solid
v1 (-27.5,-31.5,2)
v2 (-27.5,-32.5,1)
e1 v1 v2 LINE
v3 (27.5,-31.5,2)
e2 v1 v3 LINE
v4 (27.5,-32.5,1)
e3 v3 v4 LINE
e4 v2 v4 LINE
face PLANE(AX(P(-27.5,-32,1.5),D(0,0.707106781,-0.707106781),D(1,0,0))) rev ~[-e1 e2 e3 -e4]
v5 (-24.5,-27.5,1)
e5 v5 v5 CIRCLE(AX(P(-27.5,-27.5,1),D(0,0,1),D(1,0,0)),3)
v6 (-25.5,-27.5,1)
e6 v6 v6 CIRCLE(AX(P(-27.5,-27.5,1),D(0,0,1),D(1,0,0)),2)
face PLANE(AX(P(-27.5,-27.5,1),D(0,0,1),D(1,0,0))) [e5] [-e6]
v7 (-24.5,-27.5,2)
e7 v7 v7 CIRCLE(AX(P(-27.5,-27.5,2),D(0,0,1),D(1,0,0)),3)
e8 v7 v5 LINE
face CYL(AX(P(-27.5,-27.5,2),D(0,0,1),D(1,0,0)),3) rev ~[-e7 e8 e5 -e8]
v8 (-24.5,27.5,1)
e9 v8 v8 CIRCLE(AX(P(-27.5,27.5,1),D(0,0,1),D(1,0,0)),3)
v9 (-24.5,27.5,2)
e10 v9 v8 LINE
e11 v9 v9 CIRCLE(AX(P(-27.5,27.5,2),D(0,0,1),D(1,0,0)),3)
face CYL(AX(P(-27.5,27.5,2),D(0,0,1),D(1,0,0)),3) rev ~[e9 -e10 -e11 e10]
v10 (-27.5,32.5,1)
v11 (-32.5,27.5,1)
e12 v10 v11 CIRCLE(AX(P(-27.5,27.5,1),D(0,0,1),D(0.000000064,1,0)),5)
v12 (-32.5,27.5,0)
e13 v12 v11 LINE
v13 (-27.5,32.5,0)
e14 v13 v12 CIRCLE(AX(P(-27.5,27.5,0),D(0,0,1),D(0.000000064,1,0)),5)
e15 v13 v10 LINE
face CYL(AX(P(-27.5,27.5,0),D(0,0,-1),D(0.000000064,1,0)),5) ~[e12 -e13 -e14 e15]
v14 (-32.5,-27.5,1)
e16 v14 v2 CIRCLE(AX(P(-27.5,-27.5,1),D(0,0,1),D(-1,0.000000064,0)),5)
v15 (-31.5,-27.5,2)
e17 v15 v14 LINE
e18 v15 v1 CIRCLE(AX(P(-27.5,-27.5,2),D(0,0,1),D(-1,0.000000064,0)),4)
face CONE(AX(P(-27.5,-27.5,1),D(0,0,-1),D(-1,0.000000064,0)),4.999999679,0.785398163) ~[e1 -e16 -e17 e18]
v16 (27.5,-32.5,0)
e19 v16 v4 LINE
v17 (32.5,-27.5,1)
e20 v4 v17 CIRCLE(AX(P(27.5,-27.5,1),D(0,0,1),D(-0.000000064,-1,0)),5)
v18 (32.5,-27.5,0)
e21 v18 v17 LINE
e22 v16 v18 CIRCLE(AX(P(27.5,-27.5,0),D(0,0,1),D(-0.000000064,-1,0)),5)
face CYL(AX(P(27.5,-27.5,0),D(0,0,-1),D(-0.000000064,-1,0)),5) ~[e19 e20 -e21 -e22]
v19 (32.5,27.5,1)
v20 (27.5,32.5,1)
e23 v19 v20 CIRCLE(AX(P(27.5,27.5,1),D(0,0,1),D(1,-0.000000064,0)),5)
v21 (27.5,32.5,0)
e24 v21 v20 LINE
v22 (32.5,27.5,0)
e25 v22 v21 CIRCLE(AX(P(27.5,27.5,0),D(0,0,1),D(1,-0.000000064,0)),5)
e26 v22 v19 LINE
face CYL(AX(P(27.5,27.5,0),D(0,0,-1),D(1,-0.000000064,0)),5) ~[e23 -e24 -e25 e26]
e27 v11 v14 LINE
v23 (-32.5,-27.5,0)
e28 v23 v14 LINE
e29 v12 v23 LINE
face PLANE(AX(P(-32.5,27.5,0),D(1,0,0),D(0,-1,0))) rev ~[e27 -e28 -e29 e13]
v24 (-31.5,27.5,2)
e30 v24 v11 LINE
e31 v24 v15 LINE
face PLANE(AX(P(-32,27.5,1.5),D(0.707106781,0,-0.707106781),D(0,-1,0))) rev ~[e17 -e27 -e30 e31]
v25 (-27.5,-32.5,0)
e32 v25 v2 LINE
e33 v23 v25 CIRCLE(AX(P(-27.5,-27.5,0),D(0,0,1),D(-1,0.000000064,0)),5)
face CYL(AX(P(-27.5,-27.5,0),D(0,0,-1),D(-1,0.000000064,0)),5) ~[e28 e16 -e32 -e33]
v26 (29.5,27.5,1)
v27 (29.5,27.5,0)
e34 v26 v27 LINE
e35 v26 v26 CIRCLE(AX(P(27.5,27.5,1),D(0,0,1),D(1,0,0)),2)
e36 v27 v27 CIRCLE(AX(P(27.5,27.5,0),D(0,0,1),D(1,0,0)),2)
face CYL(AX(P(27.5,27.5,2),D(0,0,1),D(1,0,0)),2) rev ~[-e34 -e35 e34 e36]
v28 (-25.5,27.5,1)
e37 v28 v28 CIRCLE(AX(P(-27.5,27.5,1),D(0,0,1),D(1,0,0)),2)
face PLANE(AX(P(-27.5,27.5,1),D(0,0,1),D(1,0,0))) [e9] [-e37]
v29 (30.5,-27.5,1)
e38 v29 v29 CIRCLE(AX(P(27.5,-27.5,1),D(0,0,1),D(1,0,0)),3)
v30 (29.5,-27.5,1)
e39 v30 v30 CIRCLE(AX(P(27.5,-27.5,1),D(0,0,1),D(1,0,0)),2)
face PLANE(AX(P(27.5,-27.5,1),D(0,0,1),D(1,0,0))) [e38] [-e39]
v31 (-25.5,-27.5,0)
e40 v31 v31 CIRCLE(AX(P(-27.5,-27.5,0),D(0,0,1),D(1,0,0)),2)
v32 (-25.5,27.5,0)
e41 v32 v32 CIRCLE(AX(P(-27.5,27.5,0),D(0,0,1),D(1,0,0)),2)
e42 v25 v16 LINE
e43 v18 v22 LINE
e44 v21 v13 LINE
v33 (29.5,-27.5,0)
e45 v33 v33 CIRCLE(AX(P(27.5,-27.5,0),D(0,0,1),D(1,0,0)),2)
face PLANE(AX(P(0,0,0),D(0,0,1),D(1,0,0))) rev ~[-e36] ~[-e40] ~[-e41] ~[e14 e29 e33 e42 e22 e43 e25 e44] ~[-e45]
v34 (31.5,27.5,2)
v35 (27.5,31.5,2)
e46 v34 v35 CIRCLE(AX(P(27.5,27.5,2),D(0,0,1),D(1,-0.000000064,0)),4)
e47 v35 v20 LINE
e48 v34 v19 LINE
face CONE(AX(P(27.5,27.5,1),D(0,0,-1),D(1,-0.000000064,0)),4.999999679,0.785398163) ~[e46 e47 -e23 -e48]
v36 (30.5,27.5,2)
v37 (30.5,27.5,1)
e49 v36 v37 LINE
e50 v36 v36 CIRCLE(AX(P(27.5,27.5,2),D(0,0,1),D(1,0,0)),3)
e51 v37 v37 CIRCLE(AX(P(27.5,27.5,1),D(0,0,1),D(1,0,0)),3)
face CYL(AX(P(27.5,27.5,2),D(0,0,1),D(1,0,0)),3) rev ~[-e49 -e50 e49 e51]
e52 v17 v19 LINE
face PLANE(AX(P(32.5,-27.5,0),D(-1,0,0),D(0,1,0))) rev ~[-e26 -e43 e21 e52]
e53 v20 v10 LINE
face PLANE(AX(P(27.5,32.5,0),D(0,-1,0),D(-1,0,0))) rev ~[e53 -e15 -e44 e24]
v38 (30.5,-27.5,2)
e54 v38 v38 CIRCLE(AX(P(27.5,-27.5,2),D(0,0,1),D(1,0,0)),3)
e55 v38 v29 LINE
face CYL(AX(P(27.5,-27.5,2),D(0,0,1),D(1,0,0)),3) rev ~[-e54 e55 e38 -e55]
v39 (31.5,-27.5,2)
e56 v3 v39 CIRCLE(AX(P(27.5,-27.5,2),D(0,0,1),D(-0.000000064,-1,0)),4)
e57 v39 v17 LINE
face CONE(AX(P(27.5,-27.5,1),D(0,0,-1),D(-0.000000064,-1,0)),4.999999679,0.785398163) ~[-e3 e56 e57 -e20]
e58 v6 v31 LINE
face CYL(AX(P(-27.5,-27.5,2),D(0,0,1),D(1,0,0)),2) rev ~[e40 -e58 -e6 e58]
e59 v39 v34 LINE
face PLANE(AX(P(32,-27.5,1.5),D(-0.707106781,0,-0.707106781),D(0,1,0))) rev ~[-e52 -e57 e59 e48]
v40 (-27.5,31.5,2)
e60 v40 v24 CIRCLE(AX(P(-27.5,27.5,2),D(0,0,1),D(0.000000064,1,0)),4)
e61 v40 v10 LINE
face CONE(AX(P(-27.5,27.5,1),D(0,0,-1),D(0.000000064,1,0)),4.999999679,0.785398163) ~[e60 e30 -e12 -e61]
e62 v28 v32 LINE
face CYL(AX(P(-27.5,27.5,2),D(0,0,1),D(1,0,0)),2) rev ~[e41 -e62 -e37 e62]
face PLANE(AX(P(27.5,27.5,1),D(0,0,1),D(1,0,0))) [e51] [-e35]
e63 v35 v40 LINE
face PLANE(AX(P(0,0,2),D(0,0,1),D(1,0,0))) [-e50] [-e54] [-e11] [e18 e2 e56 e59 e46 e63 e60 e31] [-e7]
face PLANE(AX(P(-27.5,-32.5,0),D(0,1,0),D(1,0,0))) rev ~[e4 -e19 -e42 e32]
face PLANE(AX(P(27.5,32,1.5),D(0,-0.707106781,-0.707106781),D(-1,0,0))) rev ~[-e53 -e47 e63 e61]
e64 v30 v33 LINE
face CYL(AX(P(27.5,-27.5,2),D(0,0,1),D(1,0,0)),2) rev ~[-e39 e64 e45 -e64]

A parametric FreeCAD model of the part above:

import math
import FreeCAD as App
import Part
import Sketcher
from FreeCAD import Vector
Q = App.Units.Quantity


def edges_at(feature, points):
    """Names of the edges that pass closest to the given points."""
    edges = feature.Shape.Edges
    near = lambda p: min(range(len(edges)), key=lambda i: edges[i].distToShape(Part.Vertex(*p))[0])
    return sorted({f"Edge{near(p) + 1}" for p in points})

doc = App.newDocument("Part")
body = doc.addObject("PartDesign::Body", "Body")

# Sketch on XY plane
sketch1 = body.newObject("Sketcher::SketchObject", "Sketch")
sketch1.AttachmentSupport = (doc.getObject("XY_Plane"), [""])
sketch1.MapMode = "FlatFace"
sketch1.addGeometry(Part.ArcOfCircle(Part.Circle(Vector(27.5, 27.5, 0), Vector(0, 0, 1), 5), math.radians(-0.000004), math.radians(90.000004)), False)
sketch1.addGeometry(Part.LineSegment(Vector(27.5, 32.5, 0), Vector(-27.5, 32.5, 0)), False)
sketch1.addGeometry(Part.ArcOfCircle(Part.Circle(Vector(-27.5, 27.5, 0), Vector(0, 0, 1), 5), math.radians(89.999996), math.radians(180.000004)), False)
sketch1.addGeometry(Part.LineSegment(Vector(-32.5, 27.5, 0), Vector(-32.5, -27.5, 0)), False)
sketch1.addGeometry(Part.ArcOfCircle(Part.Circle(Vector(-27.5, -27.5, 0), Vector(0, 0, 1), 5), math.radians(179.999996), math.radians(270.000004)), False)
sketch1.addGeometry(Part.LineSegment(Vector(-27.5, -32.5, 0), Vector(27.5, -32.5, 0)), False)
sketch1.addGeometry(Part.ArcOfCircle(Part.Circle(Vector(27.5, -27.5, 0), Vector(0, 0, 1), 5), math.radians(-90.000004), math.radians(0.000004)), False)
sketch1.addGeometry(Part.LineSegment(Vector(32.5, -27.5, 0), Vector(32.5, 27.5, 0)), False)
sketch1.addConstraint(Sketcher.Constraint("Tangent", 0, 2, 1, 1))
sketch1.addConstraint(Sketcher.Constraint("Tangent", 1, 2, 2, 1))
sketch1.addConstraint(Sketcher.Constraint("Tangent", 2, 2, 3, 1))
sketch1.addConstraint(Sketcher.Constraint("Tangent", 3, 2, 4, 1))
sketch1.addConstraint(Sketcher.Constraint("Tangent", 4, 2, 5, 1))
sketch1.addConstraint(Sketcher.Constraint("Tangent", 5, 2, 6, 1))
sketch1.addConstraint(Sketcher.Constraint("Tangent", 6, 2, 7, 1))
sketch1.addConstraint(Sketcher.Constraint("Tangent", 7, 2, 0, 1))
sketch1.addConstraint(Sketcher.Constraint("Horizontal", 1))
sketch1.addConstraint(Sketcher.Constraint("Vertical", 3))
sketch1.addConstraint(Sketcher.Constraint("Horizontal", 5))
sketch1.addConstraint(Sketcher.Constraint("Vertical", 7))
sketch1.addConstraint(Sketcher.Constraint("Equal", 0, 2))
sketch1.addConstraint(Sketcher.Constraint("Equal", 2, 4))
sketch1.addConstraint(Sketcher.Constraint("Equal", 4, 6))
sketch1.addConstraint(Sketcher.Constraint("Symmetric", 0, 3, 4, 3, -1, 1))
sketch1.addConstraint(Sketcher.Constraint("Equal", 5, 3))
sketch1.addConstraint(Sketcher.Constraint("Radius", 0, Q("5 mm")))
sketch1.addConstraint(Sketcher.Constraint("DistanceX", 1, 2, 1, 1, Q("55 mm")))
pad1 = body.newObject("PartDesign::Pad", "Pad")
pad1.Profile = sketch1
pad1.Length = 2

# Sketch on XY plane
sketch2 = body.newObject("Sketcher::SketchObject", "Sketch001")
sketch2.AttachmentSupport = (doc.getObject("XY_Plane"), [""])
sketch2.MapMode = "FlatFace"
sketch2.AttachmentOffset = App.Placement(Vector(0, 0, 2), App.Rotation())
sketch2.addGeometry(Part.Circle(Vector(-27.5, 27.5, 0), Vector(0, 0, 1), 2), False)
sketch2.addGeometry(Part.Circle(Vector(27.5, 27.5, 0), Vector(0, 0, 1), 2), False)
sketch2.addGeometry(Part.Circle(Vector(27.5, -27.5, 0), Vector(0, 0, 1), 2), False)
sketch2.addGeometry(Part.Circle(Vector(-27.5, -27.5, 0), Vector(0, 0, 1), 2), False)
sketch2.addConstraint(Sketcher.Constraint("Equal", 0, 1))
sketch2.addConstraint(Sketcher.Constraint("Equal", 1, 2))
sketch2.addConstraint(Sketcher.Constraint("Equal", 2, 3))
sketch2.addConstraint(Sketcher.Constraint("Symmetric", 0, 3, 2, 3, -1, 1))
sketch2.addConstraint(Sketcher.Constraint("Symmetric", 1, 3, 3, 3, -1, 1))
sketch2.addConstraint(Sketcher.Constraint("Symmetric", 0, 3, 1, 3, -2))
sketch2.addConstraint(Sketcher.Constraint("Diameter", 0, Q("4 mm")))
sketch2.addConstraint(Sketcher.Constraint("DistanceX", 0, 3, 1, 3, Q("55 mm")))
sketch2.addConstraint(Sketcher.Constraint("DistanceY", 2, 3, 1, 3, Q("55 mm")))
pocket1 = body.newObject("PartDesign::Pocket", "Pocket")
pocket1.Profile = sketch2
pocket1.Type = "ThroughAll"

# Sketch on XY plane
sketch3 = body.newObject("Sketcher::SketchObject", "Sketch002")
sketch3.AttachmentSupport = (doc.getObject("XY_Plane"), [""])
sketch3.MapMode = "FlatFace"
sketch3.AttachmentOffset = App.Placement(Vector(0, 0, 2), App.Rotation())
sketch3.addGeometry(Part.Circle(Vector(-27.5, 27.5, 0), Vector(0, 0, 1), 3), False)
sketch3.addGeometry(Part.Circle(Vector(-27.5, 27.5, 0), Vector(0, 0, 1), 2), False)
sketch3.addGeometry(Part.Circle(Vector(27.5, 27.5, 0), Vector(0, 0, 1), 3), False)
sketch3.addGeometry(Part.Circle(Vector(27.5, 27.5, 0), Vector(0, 0, 1), 2), False)
sketch3.addGeometry(Part.Circle(Vector(-27.5, -27.5, 0), Vector(0, 0, 1), 3), False)
sketch3.addGeometry(Part.Circle(Vector(-27.5, -27.5, 0), Vector(0, 0, 1), 2), False)
sketch3.addGeometry(Part.Circle(Vector(27.5, -27.5, 0), Vector(0, 0, 1), 3), False)
sketch3.addGeometry(Part.Circle(Vector(27.5, -27.5, 0), Vector(0, 0, 1), 2), False)
sketch3.addConstraint(Sketcher.Constraint("Coincident", 1, 3, 0, 3))
sketch3.addConstraint(Sketcher.Constraint("Coincident", 3, 3, 2, 3))
sketch3.addConstraint(Sketcher.Constraint("Coincident", 5, 3, 4, 3))
sketch3.addConstraint(Sketcher.Constraint("Coincident", 7, 3, 6, 3))
sketch3.addConstraint(Sketcher.Constraint("Equal", 0, 2))
sketch3.addConstraint(Sketcher.Constraint("Equal", 1, 3))
sketch3.addConstraint(Sketcher.Constraint("Equal", 2, 4))
sketch3.addConstraint(Sketcher.Constraint("Equal", 3, 5))
sketch3.addConstraint(Sketcher.Constraint("Equal", 4, 6))
sketch3.addConstraint(Sketcher.Constraint("Equal", 5, 7))
sketch3.addConstraint(Sketcher.Constraint("Symmetric", 2, 3, 4, 3, -1, 1))
sketch3.addConstraint(Sketcher.Constraint("Symmetric", 0, 3, 6, 3, -1, 1))
sketch3.addConstraint(Sketcher.Constraint("Symmetric", 0, 3, 2, 3, -2))
sketch3.addConstraint(Sketcher.Constraint("Diameter", 0, Q("6 mm")))
sketch3.addConstraint(Sketcher.Constraint("Diameter", 1, Q("4 mm")))
sketch3.addConstraint(Sketcher.Constraint("DistanceX", 0, 3, 2, 3, Q("55 mm")))
sketch3.addConstraint(Sketcher.Constraint("DistanceY", 4, 3, 0, 3, Q("55 mm")))
pocket2 = body.newObject("PartDesign::Pocket", "Pocket001")
pocket2.Profile = sketch3
pocket2.Length = 1
doc.recompute()

chamfer = body.newObject("PartDesign::Chamfer", "Chamfer")
chamfer.Base = (pocket2, edges_at(pocket2, [
    (-32.5, 0, 2),
    (-31.036, 31.036, 2),
    (0, 32.5, 2),
    (31.036, 31.036, 2),
    (32.5, 0, 2),
    (31.036, -31.036, 2),
    (0, -32.5, 2),
    (-31.036, -31.036, 2),
]))
chamfer.Size = 1

doc.recompute()
